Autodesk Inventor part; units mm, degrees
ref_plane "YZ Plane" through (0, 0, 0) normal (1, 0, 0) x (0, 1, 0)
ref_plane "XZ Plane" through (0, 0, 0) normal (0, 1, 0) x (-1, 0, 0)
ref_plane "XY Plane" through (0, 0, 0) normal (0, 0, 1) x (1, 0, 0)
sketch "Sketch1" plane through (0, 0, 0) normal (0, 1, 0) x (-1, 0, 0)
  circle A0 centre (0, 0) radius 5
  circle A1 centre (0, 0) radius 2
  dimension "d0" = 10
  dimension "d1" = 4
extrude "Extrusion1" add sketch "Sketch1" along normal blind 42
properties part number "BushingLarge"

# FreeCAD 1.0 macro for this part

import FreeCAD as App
import Part
import Sketcher

V = App.Vector
Q = App.Units.Quantity

doc = App.newDocument("Part")
body = doc.addObject("PartDesign::Body", "Body")

# Sketch on XZ plane
sketch1 = doc.addObject("Sketcher::SketchObject", "Sketch")
body.addObject(sketch1)
sketch1.AttachmentSupport = (doc.XZ_Plane, [""])
sketch1.MapMode = "FlatFace"
sketch1.addGeometry(Part.Circle(V(0, 0, 0), V(0, 0, 1), 5), False)
sketch1.addGeometry(Part.Circle(V(0, 0, 0), V(0, 0, 1), 2), False)
sketch1.addConstraint(Sketcher.Constraint("Coincident", 0, 3, -1, 1))
sketch1.addConstraint(Sketcher.Constraint("Coincident", 1, 3, -1, 1))
sketch1.addConstraint(Sketcher.Constraint("Diameter", 0, Q("10 mm")))
sketch1.addConstraint(Sketcher.Constraint("Diameter", 1, Q("4 mm")))
pad1 = doc.addObject("PartDesign::Pad", "Pad")
body.addObject(pad1)
pad1.Profile = sketch1
pad1.Length = 42
pad1.Reversed = True

doc.recompute()
